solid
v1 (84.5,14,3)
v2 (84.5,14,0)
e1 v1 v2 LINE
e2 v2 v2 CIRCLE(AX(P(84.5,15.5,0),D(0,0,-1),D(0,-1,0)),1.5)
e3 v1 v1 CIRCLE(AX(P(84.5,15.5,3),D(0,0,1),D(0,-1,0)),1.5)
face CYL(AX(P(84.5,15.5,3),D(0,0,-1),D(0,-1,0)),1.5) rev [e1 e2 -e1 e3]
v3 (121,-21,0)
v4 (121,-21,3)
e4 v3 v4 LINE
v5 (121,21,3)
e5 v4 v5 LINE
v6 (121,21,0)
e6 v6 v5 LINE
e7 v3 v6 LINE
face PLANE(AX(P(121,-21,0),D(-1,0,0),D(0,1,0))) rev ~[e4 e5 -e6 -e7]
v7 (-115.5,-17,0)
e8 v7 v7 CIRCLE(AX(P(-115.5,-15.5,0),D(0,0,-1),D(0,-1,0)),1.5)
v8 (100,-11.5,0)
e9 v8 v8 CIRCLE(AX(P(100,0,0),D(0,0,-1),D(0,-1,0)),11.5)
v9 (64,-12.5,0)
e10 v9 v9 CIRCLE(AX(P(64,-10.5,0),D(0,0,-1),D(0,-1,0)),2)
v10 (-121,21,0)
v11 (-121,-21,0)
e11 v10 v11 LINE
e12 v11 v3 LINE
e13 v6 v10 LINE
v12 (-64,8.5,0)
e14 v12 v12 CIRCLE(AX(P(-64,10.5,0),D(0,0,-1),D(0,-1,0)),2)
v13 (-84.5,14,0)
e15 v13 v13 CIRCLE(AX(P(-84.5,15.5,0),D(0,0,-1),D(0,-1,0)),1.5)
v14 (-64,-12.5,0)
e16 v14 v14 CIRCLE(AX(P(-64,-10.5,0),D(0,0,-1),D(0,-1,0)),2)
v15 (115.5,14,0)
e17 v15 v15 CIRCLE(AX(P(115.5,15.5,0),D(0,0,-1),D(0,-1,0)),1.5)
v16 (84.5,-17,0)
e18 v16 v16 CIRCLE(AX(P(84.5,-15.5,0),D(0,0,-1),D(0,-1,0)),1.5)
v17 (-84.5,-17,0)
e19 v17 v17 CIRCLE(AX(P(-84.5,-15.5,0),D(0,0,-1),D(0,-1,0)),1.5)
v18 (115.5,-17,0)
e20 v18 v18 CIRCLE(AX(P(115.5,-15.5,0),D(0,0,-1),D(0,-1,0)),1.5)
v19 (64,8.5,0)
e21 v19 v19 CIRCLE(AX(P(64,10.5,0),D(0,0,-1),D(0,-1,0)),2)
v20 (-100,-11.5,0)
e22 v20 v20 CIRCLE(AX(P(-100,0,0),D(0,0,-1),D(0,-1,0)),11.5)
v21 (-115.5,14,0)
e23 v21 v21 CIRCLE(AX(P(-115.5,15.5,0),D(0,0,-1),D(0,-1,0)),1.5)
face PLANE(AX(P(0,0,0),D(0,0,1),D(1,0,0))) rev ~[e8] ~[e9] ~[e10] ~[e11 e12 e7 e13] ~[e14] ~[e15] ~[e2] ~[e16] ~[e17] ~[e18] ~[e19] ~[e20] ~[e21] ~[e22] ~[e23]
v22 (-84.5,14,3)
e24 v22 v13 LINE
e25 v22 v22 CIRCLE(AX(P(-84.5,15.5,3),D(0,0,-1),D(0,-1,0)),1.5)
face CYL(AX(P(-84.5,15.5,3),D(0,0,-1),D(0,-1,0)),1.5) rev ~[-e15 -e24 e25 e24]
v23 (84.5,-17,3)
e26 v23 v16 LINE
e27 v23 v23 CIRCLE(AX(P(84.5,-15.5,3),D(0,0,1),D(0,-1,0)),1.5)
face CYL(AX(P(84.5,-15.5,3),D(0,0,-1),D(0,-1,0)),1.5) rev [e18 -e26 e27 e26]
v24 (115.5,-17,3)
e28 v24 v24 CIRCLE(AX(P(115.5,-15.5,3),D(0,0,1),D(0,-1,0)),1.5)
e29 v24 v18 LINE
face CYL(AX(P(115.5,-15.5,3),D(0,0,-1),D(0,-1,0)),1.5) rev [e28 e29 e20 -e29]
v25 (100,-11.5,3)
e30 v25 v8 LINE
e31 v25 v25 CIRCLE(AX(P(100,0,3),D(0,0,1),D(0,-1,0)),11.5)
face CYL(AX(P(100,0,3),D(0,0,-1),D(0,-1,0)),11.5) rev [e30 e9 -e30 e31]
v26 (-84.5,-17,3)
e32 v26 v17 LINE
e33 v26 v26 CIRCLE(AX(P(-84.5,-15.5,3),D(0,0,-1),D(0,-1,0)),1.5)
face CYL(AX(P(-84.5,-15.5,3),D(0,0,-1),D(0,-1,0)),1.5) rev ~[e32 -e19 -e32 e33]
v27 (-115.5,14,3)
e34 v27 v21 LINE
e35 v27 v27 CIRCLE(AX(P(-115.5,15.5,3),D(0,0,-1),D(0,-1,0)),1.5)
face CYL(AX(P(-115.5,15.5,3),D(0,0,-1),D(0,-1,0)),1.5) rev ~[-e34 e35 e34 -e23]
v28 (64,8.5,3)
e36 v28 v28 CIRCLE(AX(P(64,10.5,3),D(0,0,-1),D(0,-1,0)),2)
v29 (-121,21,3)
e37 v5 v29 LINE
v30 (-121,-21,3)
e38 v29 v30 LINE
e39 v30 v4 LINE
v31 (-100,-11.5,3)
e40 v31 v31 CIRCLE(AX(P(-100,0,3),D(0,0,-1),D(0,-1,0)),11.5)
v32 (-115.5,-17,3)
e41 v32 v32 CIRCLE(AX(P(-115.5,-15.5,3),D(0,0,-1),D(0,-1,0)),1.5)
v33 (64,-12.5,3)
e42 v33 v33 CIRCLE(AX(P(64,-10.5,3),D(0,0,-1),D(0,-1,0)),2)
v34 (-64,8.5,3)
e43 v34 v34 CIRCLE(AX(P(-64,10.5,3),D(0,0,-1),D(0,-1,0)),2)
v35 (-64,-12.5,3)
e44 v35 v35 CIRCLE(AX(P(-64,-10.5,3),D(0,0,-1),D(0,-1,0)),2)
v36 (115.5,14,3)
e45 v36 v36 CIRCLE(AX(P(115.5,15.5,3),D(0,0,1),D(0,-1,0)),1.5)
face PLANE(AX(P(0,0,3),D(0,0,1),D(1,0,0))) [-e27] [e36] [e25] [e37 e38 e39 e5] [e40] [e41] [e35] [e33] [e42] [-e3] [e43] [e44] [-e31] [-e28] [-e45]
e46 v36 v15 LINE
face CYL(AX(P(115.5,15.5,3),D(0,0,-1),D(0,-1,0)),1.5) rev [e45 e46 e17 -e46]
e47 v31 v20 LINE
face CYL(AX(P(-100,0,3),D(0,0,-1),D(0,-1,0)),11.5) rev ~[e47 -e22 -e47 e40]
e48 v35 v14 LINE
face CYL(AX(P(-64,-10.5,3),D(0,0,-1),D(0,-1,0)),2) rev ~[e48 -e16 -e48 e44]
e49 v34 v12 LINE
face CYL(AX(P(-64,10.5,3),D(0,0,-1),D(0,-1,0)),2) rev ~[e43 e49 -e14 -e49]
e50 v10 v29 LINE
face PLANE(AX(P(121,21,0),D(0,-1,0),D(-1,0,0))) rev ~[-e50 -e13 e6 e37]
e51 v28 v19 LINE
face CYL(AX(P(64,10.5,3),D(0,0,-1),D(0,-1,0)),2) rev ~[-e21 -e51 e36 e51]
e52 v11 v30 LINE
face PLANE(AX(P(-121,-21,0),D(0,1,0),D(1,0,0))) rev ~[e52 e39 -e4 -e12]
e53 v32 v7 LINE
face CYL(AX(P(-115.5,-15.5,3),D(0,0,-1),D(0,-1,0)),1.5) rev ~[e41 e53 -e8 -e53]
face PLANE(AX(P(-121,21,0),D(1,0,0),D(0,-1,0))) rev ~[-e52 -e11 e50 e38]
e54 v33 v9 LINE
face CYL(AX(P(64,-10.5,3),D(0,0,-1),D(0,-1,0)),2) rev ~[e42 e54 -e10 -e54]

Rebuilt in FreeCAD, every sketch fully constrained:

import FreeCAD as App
import Part
import Sketcher

V = App.Vector

doc = App.newDocument("Part")
params = doc.addObject("Spreadsheet::Sheet", "Params")
for row, (alias, value) in enumerate([
    ("sketch1_width", "242 mm"),
    ("sketch1_height", "42 mm"),
    ("pad1_length", "3 mm"),
    ("sketch2_diameter", "3 mm"),
    ("hole_diameter", "3 mm"),
    ("sketch3_diameter", "23 mm"),
    ("hole2_diameter", "23 mm"),
    ("sketch4_diameter", "4 mm"),
    ("hole3_diameter", "4 mm"),
], start=1):
    params.set(f"A{row}", alias)
    params.set(f"B{row}", "=" + value)
    params.setAlias(f"B{row}", alias)

body = doc.addObject("PartDesign::Body", "Body")

# Sketch on XY plane
sketch1 = body.newObject("Sketcher::SketchObject", "Sketch")
sketch1.AttachmentSupport = (doc.getObject("XY_Plane"), [""])
sketch1.MapMode = "FlatFace"
sketch1.addGeometry(Part.LineSegment(V(-121, 21, 0), V(-121, -21, 0)), False)
sketch1.addGeometry(Part.LineSegment(V(-121, -21, 0), V(121, -21, 0)), False)
sketch1.addGeometry(Part.LineSegment(V(121, -21, 0), V(121, 21, 0)), False)
sketch1.addGeometry(Part.LineSegment(V(121, 21, 0), V(-121, 21, 0)), False)
sketch1.addConstraint(Sketcher.Constraint("Coincident", 0, 2, 1, 1))
sketch1.addConstraint(Sketcher.Constraint("Coincident", 1, 2, 2, 1))
sketch1.addConstraint(Sketcher.Constraint("Coincident", 2, 2, 3, 1))
sketch1.addConstraint(Sketcher.Constraint("Coincident", 3, 2, 0, 1))
sketch1.addConstraint(Sketcher.Constraint("Vertical", 0))
sketch1.addConstraint(Sketcher.Constraint("Horizontal", 1))
sketch1.addConstraint(Sketcher.Constraint("Vertical", 2))
sketch1.addConstraint(Sketcher.Constraint("Horizontal", 3))
sketch1.addConstraint(Sketcher.Constraint("Symmetric", 0, 2, 2, 2, -1, 1))
sketch1.addConstraint(Sketcher.Constraint("DistanceX", 1, 1, 1, 2, 242.0))
sketch1.addConstraint(Sketcher.Constraint("DistanceY", 0, 2, 0, 1, 42.0))
sketch1.setExpression("Constraints[9]", "Params.sketch1_width")
sketch1.setExpression("Constraints[10]", "Params.sketch1_height")
pad1 = body.newObject("PartDesign::Pad", "Pad")
pad1.Profile = sketch1
pad1.setExpression("Length", "Params.pad1_length")

# Sketch on XY plane
sketch2 = body.newObject("Sketcher::SketchObject", "Sketch001")
sketch2.AttachmentSupport = (doc.getObject("XY_Plane"), [""])
sketch2.MapMode = "FlatFace"
sketch2.AttachmentOffset = App.Placement(V(0, 0, 3), App.Rotation())
sketch2.addGeometry(Part.Circle(V(-115.5, 15.5, 0), V(0, 0, 1), 1.5), False)
sketch2.addGeometry(Part.Circle(V(-84.5, 15.5, 0), V(0, 0, 1), 1.5), False)
sketch2.addGeometry(Part.Circle(V(-84.5, -15.5, 0), V(0, 0, 1), 1.5), False)
sketch2.addGeometry(Part.Circle(V(-115.5, -15.5, 0), V(0, 0, 1), 1.5), False)
sketch2.addConstraint(Sketcher.Constraint("Equal", 0, 1))
sketch2.addConstraint(Sketcher.Constraint("Equal", 1, 2))
sketch2.addConstraint(Sketcher.Constraint("Equal", 2, 3))
sketch2.addConstraint(Sketcher.Constraint("Symmetric", 1, 3, 2, 3, -1))
sketch2.addConstraint(Sketcher.Constraint("Symmetric", 0, 3, 3, 3, -1))
sketch2.addConstraint(Sketcher.Constraint("Horizontal", 0, 3, 1, 3))
sketch2.addConstraint(Sketcher.Constraint("Diameter", 0, 3.0))
sketch2.addConstraint(Sketcher.Constraint("DistanceX", 0, 3, 1, 3, 31.0))
sketch2.addConstraint(Sketcher.Constraint("DistanceY", 2, 3, 1, 3, 31.0))
sketch2.addConstraint(Sketcher.Constraint("DistanceX", 0, 3, -1, 1, 115.5))
sketch2.setExpression("Constraints[6]", "Params.sketch2_diameter")
doc.recompute()
hole = body.newObject("PartDesign::Hole", "Hole")
hole.Profile = sketch2
hole.ThreadType = "None"
hole.setExpression("Diameter", "Params.hole_diameter")
hole.DepthType = "ThroughAll"

# Sketch on XY plane
sketch3 = body.newObject("Sketcher::SketchObject", "Sketch002")
sketch3.AttachmentSupport = (doc.getObject("XY_Plane"), [""])
sketch3.MapMode = "FlatFace"
sketch3.AttachmentOffset = App.Placement(V(0, 0, 3), App.Rotation())
sketch3.addGeometry(Part.Circle(V(-100, 0, 0), V(0, 0, 1), 12), False)
sketch3.addConstraint(Sketcher.Constraint("PointOnObject", 0, 3, -1))
sketch3.addConstraint(Sketcher.Constraint("Diameter", 0, 23.0))
sketch3.addConstraint(Sketcher.Constraint("DistanceX", 0, 3, -1, 1, 100.0))
sketch3.setExpression("Constraints[1]", "Params.sketch3_diameter")
doc.recompute()
hole2 = body.newObject("PartDesign::Hole", "Hole001")
hole2.Profile = sketch3
hole2.ThreadType = "None"
hole2.setExpression("Diameter", "Params.hole2_diameter")
hole2.DepthType = "ThroughAll"
doc.recompute()

mirrored = body.newObject("PartDesign::Mirrored", "Mirrored")
mirrored.Originals = [hole, hole2]
mirrored.MirrorPlane = (doc.getObject("YZ_Plane"), [""])
body.Tip = mirrored

# Sketch on XY plane
sketch4 = body.newObject("Sketcher::SketchObject", "Sketch003")
sketch4.AttachmentSupport = (doc.getObject("XY_Plane"), [""])
sketch4.MapMode = "FlatFace"
sketch4.AttachmentOffset = App.Placement(V(0, 0, 3), App.Rotation())
sketch4.addGeometry(Part.Circle(V(64, -10.5, 0), V(0, 0, 1), 2), False)
sketch4.addGeometry(Part.Circle(V(64, 10.5, 0), V(0, 0, 1), 2), False)
sketch4.addGeometry(Part.Circle(V(-64, 10.5, 0), V(0, 0, 1), 2), False)
sketch4.addGeometry(Part.Circle(V(-64, -10.5, 0), V(0, 0, 1), 2), False)
sketch4.addConstraint(Sketcher.Constraint("Equal", 0, 1))
sketch4.addConstraint(Sketcher.Constraint("Equal", 1, 2))
sketch4.addConstraint(Sketcher.Constraint("Equal", 2, 3))
sketch4.addConstraint(Sketcher.Constraint("Symmetric", 0, 3, 2, 3, -1, 1))
sketch4.addConstraint(Sketcher.Constraint("Symmetric", 1, 3, 3, 3, -1, 1))
sketch4.addConstraint(Sketcher.Constraint("Symmetric", 1, 3, 2, 3, -2))
sketch4.addConstraint(Sketcher.Constraint("Diameter", 0, 4.0))
sketch4.addConstraint(Sketcher.Constraint("DistanceX", -1, 1, 0, 3, 64.0))
sketch4.addConstraint(Sketcher.Constraint("DistanceY", 0, 3, 1, 3, 21.0))
sketch4.setExpression("Constraints[6]", "Params.sketch4_diameter")
doc.recompute()
hole3 = body.newObject("PartDesign::Hole", "Hole002")
hole3.Profile = sketch4
hole3.ThreadType = "None"
hole3.setExpression("Diameter", "Params.hole3_diameter")
hole3.DepthType = "ThroughAll"

doc.recompute()
